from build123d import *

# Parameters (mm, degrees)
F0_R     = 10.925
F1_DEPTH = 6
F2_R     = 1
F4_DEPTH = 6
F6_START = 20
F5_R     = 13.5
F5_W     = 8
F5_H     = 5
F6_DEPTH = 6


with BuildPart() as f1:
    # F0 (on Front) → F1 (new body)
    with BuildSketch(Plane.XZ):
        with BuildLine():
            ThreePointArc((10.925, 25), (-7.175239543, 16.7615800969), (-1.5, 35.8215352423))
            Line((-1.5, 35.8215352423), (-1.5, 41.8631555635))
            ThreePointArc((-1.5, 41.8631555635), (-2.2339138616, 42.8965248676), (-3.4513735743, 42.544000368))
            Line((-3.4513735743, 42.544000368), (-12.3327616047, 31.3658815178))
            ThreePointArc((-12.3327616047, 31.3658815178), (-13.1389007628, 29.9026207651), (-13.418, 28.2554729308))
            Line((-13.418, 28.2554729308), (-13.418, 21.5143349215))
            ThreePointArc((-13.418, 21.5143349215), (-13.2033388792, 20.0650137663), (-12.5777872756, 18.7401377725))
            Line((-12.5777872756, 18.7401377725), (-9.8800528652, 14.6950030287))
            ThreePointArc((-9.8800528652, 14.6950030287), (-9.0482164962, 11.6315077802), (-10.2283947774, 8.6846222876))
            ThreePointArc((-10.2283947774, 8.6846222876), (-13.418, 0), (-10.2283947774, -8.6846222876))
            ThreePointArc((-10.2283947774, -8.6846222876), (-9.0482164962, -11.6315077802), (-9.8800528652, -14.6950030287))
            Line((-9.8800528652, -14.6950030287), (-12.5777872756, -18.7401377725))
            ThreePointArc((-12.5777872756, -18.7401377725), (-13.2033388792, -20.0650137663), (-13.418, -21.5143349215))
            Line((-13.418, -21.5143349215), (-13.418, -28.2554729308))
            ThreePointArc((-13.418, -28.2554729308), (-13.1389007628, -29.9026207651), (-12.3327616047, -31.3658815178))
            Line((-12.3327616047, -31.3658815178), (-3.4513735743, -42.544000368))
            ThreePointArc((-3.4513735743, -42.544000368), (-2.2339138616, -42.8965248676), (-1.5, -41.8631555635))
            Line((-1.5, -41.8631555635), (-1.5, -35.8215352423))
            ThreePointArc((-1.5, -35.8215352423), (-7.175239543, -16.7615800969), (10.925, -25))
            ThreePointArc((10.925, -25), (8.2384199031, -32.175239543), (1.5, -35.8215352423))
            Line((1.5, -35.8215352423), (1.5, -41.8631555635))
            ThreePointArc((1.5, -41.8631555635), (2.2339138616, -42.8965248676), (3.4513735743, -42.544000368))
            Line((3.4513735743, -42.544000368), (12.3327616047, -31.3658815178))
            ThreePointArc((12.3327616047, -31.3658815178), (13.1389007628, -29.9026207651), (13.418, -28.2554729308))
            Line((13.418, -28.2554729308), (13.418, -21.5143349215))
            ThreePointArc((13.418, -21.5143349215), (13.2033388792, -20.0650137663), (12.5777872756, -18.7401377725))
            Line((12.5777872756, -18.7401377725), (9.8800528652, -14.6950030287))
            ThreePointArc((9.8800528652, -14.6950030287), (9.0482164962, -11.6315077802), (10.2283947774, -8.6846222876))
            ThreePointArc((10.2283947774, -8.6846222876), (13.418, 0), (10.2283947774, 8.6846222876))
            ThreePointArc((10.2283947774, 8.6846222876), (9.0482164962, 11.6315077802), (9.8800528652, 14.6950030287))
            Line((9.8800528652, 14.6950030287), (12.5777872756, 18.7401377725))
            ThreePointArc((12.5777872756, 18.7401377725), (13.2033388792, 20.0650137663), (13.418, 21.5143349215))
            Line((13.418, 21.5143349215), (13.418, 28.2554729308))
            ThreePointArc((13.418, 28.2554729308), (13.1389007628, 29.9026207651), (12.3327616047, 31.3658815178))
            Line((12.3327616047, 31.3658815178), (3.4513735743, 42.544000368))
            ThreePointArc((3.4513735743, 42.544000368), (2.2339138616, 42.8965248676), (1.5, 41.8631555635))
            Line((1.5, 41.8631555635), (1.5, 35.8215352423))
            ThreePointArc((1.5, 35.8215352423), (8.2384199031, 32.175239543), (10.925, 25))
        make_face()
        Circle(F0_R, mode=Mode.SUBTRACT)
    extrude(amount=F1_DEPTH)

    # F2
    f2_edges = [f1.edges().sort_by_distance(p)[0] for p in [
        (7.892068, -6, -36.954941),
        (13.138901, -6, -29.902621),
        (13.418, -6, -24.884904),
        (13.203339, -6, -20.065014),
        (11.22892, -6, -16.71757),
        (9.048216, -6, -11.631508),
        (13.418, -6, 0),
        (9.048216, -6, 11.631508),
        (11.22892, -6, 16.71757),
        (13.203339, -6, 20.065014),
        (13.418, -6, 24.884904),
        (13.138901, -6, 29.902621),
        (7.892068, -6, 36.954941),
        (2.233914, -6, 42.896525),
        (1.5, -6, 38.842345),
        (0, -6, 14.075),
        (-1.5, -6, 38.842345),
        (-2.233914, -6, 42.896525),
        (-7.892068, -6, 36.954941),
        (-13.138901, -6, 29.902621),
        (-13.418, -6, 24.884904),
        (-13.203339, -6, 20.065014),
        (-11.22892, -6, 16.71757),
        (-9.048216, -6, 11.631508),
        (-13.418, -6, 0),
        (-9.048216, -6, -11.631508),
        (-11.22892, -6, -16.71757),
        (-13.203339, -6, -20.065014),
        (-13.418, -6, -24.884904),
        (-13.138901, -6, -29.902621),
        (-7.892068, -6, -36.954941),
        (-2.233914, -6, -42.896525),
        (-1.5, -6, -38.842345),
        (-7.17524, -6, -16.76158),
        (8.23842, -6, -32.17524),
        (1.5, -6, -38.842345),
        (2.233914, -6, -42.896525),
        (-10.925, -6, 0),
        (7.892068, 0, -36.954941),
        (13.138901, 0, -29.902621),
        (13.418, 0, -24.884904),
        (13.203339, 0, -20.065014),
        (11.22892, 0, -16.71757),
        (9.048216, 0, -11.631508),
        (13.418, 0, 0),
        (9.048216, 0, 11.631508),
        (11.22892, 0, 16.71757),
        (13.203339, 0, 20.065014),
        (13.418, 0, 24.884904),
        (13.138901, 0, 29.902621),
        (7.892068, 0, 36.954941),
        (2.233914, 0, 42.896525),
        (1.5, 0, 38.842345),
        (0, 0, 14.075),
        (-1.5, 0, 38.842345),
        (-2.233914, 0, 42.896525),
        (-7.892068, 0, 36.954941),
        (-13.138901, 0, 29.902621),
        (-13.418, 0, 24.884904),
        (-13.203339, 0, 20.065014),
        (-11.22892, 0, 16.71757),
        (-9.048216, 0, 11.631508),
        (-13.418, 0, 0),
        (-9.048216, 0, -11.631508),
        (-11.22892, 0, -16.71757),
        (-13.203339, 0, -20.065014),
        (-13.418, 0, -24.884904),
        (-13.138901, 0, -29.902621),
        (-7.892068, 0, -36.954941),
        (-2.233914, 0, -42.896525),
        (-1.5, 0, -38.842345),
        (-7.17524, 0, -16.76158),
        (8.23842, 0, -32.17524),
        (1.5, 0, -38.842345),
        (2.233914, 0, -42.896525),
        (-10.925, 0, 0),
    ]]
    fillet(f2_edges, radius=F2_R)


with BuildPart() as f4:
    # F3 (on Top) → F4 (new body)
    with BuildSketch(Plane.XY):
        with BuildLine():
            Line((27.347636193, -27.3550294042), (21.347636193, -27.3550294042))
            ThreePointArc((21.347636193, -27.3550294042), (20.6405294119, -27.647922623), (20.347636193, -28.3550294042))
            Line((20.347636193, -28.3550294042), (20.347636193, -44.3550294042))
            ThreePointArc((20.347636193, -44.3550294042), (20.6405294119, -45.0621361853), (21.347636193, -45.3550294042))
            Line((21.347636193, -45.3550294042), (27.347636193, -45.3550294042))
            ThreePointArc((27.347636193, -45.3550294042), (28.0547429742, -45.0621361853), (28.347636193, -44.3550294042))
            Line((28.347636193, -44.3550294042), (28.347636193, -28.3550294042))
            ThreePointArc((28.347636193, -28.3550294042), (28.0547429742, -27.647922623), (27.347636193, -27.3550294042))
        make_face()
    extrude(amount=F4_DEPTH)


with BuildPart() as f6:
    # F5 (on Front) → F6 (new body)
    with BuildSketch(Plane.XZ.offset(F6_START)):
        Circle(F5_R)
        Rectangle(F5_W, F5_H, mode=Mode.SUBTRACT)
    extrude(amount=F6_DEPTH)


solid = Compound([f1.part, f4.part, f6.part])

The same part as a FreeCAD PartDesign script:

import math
import FreeCAD as App
import Part
import Sketcher


def edges_at(feature, points):
    """Names of the edges that pass closest to the given points."""
    edges = feature.Shape.Edges
    near = lambda p: min(range(len(edges)), key=lambda i: edges[i].distToShape(Part.Vertex(*p))[0])
    return sorted({f"Edge{near(p) + 1}" for p in points})

doc = App.newDocument("Part")
body = doc.addObject("PartDesign::Body", "Body")

sketch1 = body.newObject("Sketcher::SketchObject", "Sketch")
sketch1.AttachmentSupport = (doc.getObject("XZ_Plane"), [""])
sketch1.MapMode = "FlatFace"
sketch1.addGeometry([
    Part.ArcOfCircle(Part.Circle(App.Vector(0, 25, 0), App.Vector(0, 0, 1), 10.925), math.radians(97.891626), math.radians(360)),
    Part.LineSegment(App.Vector(-1.5, 35.821535, 0), App.Vector(-1.5, 41.863156, 0)),
    Part.ArcOfCircle(Part.Circle(App.Vector(-2.594462, 41.863156, 0), App.Vector(0, 0, 1), 1.094462), math.radians(0), math.radians(141.531688)),
    Part.LineSegment(App.Vector(-3.451374, 42.544, 0), App.Vector(-12.332762, 31.365882, 0)),
    Part.ArcOfCircle(Part.Circle(App.Vector(-8.418, 28.255473, 0), App.Vector(0, 0, 1), 5), math.radians(141.531688), math.radians(180)),
    Part.LineSegment(App.Vector(-13.418, 28.255473, 0), App.Vector(-13.418, 21.514335, 0)),
    Part.ArcOfCircle(Part.Circle(App.Vector(-8.418, 21.514335, 0), App.Vector(0, 0, 1), 5), math.radians(180), math.radians(213.699656)),
    Part.LineSegment(App.Vector(-12.577787, 18.740138, 0), App.Vector(-9.880053, 14.695003, 0)),
    Part.ArcOfCircle(Part.Circle(App.Vector(-14.03984, 11.920806, 0), App.Vector(0, 0, 1), 5), math.radians(-40.333585), math.radians(33.699656)),
    Part.ArcOfCircle(Part.Circle(App.Vector(0, 0, 0), App.Vector(0, 0, 1), 13.418), math.radians(139.666415), math.radians(220.333585)),
    Part.ArcOfCircle(Part.Circle(App.Vector(-14.03984, -11.920806, 0), App.Vector(0, 0, 1), 5), math.radians(-33.699656), math.radians(40.333585)),
    Part.LineSegment(App.Vector(-9.880053, -14.695003, 0), App.Vector(-12.577787, -18.740138, 0)),
    Part.ArcOfCircle(Part.Circle(App.Vector(-8.418, -21.514335, 0), App.Vector(0, 0, 1), 5), math.radians(146.300344), math.radians(180)),
    Part.LineSegment(App.Vector(-13.418, -21.514335, 0), App.Vector(-13.418, -28.255473, 0)),
    Part.ArcOfCircle(Part.Circle(App.Vector(-8.418, -28.255473, 0), App.Vector(0, 0, 1), 5), math.radians(180), math.radians(218.468312)),
    Part.LineSegment(App.Vector(-12.332762, -31.365882, 0), App.Vector(-3.451374, -42.544, 0)),
    Part.ArcOfCircle(Part.Circle(App.Vector(-2.594462, -41.863156, 0), App.Vector(0, 0, 1), 1.094462), math.radians(-141.531688), math.radians(0)),
    Part.LineSegment(App.Vector(-1.5, -41.863156, 0), App.Vector(-1.5, -35.821535, 0)),
    Part.ArcOfCircle(Part.Circle(App.Vector(0, -25, 0), App.Vector(0, 0, 1), 10.925), math.radians(0), math.radians(262.108374)),
    Part.ArcOfCircle(Part.Circle(App.Vector(0, -25, 0), App.Vector(0, 0, 1), 10.925), math.radians(-82.108374), math.radians(0)),
    Part.LineSegment(App.Vector(1.5, -35.821535, 0), App.Vector(1.5, -41.863156, 0)),
    Part.ArcOfCircle(Part.Circle(App.Vector(2.594462, -41.863156, 0), App.Vector(0, 0, 1), 1.094462), math.radians(180), math.radians(321.531688)),
    Part.LineSegment(App.Vector(3.451374, -42.544, 0), App.Vector(12.332762, -31.365882, 0)),
    Part.ArcOfCircle(Part.Circle(App.Vector(8.418, -28.255473, 0), App.Vector(0, 0, 1), 5), math.radians(-38.468312), math.radians(0)),
    Part.LineSegment(App.Vector(13.418, -28.255473, 0), App.Vector(13.418, -21.514335, 0)),
    Part.ArcOfCircle(Part.Circle(App.Vector(8.418, -21.514335, 0), App.Vector(0, 0, 1), 5), math.radians(0), math.radians(33.699656)),
    Part.LineSegment(App.Vector(12.577787, -18.740138, 0), App.Vector(9.880053, -14.695003, 0)),
    Part.ArcOfCircle(Part.Circle(App.Vector(14.03984, -11.920806, 0), App.Vector(0, 0, 1), 5), math.radians(139.666415), math.radians(213.699656)),
    Part.ArcOfCircle(Part.Circle(App.Vector(0, 0, 0), App.Vector(0, 0, 1), 13.418), math.radians(-40.333585), math.radians(40.333585)),
    Part.ArcOfCircle(Part.Circle(App.Vector(14.03984, 11.920806, 0), App.Vector(0, 0, 1), 5), math.radians(146.300344), math.radians(220.333585)),
    Part.LineSegment(App.Vector(9.880053, 14.695003, 0), App.Vector(12.577787, 18.740138, 0)),
    Part.ArcOfCircle(Part.Circle(App.Vector(8.418, 21.514335, 0), App.Vector(0, 0, 1), 5), math.radians(-33.699656), math.radians(0)),
    Part.LineSegment(App.Vector(13.418, 21.514335, 0), App.Vector(13.418, 28.255473, 0)),
    Part.ArcOfCircle(Part.Circle(App.Vector(8.418, 28.255473, 0), App.Vector(0, 0, 1), 5), math.radians(0), math.radians(38.468312)),
    Part.LineSegment(App.Vector(12.332762, 31.365882, 0), App.Vector(3.451374, 42.544, 0)),
    Part.ArcOfCircle(Part.Circle(App.Vector(2.594462, 41.863156, 0), App.Vector(0, 0, 1), 1.094462), math.radians(38.468312), math.radians(180)),
    Part.LineSegment(App.Vector(1.5, 41.863156, 0), App.Vector(1.5, 35.821535, 0)),
    Part.ArcOfCircle(Part.Circle(App.Vector(0, 25, 0), App.Vector(0, 0, 1), 10.925), math.radians(0), math.radians(82.108374)),
    Part.Circle(App.Vector(0, 0, 0), App.Vector(0, 0, 1), 10.925),
], False)
sketch1.addConstraint([
    Sketcher.Constraint("Coincident", 0, 1, 1, 1),
    Sketcher.Constraint("Tangent", 1, 2, 2, 1),
    Sketcher.Constraint("Tangent", 2, 2, 3, 1),
    Sketcher.Constraint("Tangent", 3, 2, 4, 1),
    Sketcher.Constraint("Tangent", 4, 2, 5, 1),
    Sketcher.Constraint("Tangent", 5, 2, 6, 1),
    Sketcher.Constraint("Tangent", 6, 2, 7, 1),
    Sketcher.Constraint("Tangent", 7, 2, 8, 2),
    Sketcher.Constraint("Tangent", 8, 1, 9, 1),
    Sketcher.Constraint("Tangent", 9, 2, 10, 2),
    Sketcher.Constraint("Tangent", 10, 1, 11, 1),
    Sketcher.Constraint("Tangent", 11, 2, 12, 1),
    Sketcher.Constraint("Tangent", 12, 2, 13, 1),
    Sketcher.Constraint("Tangent", 13, 2, 14, 1),
    Sketcher.Constraint("Tangent", 14, 2, 15, 1),
    Sketcher.Constraint("Tangent", 15, 2, 16, 1),
    Sketcher.Constraint("Tangent", 16, 2, 17, 1),
    Sketcher.Constraint("Coincident", 17, 2, 18, 2),
    Sketcher.Constraint("Tangent", 18, 1, 19, 2),
    Sketcher.Constraint("Coincident", 19, 1, 20, 1),
    Sketcher.Constraint("Tangent", 20, 2, 21, 1),
    Sketcher.Constraint("Tangent", 21, 2, 22, 1),
    Sketcher.Constraint("Tangent", 22, 2, 23, 1),
    Sketcher.Constraint("Tangent", 23, 2, 24, 1),
    Sketcher.Constraint("Tangent", 24, 2, 25, 1),
    Sketcher.Constraint("Tangent", 25, 2, 26, 1),
    Sketcher.Constraint("Tangent", 26, 2, 27, 2),
    Sketcher.Constraint("Tangent", 27, 1, 28, 1),
    Sketcher.Constraint("Tangent", 28, 2, 29, 2),
    Sketcher.Constraint("Tangent", 29, 1, 30, 1),
    Sketcher.Constraint("Tangent", 30, 2, 31, 1),
    Sketcher.Constraint("Tangent", 31, 2, 32, 1),
    Sketcher.Constraint("Tangent", 32, 2, 33, 1),
    Sketcher.Constraint("Tangent", 33, 2, 34, 1),
    Sketcher.Constraint("Tangent", 34, 2, 35, 1),
    Sketcher.Constraint("Tangent", 35, 2, 36, 1),
    Sketcher.Constraint("Coincident", 36, 2, 37, 2),
    Sketcher.Constraint("Tangent", 37, 1, 0, 2),
    Sketcher.Constraint("Vertical", 1),
    Sketcher.Constraint("Vertical", 5),
    Sketcher.Constraint("Vertical", 13),
    Sketcher.Constraint("Vertical", 17),
    Sketcher.Constraint("Vertical", 20),
    Sketcher.Constraint("Vertical", 24),
    Sketcher.Constraint("Vertical", 32),
    Sketcher.Constraint("Vertical", 36),
    Sketcher.Constraint("Coincident", 9, 3, -1, 1),
    Sketcher.Constraint("Coincident", 28, 3, -1, 1),
    Sketcher.Constraint("Coincident", 38, 3, -1, 1),
    Sketcher.Constraint("Equal", 4, 6),
    Sketcher.Constraint("Equal", 6, 8),
    Sketcher.Constraint("Equal", 8, 10),
    Sketcher.Constraint("Equal", 10, 12),
    Sketcher.Constraint("Equal", 12, 14),
    Sketcher.Constraint("Equal", 2, 16),
    Sketcher.Constraint("Equal", 0, 18),
    Sketcher.Constraint("Equal", 18, 19),
    Sketcher.Constraint("Equal", 16, 21),
    Sketcher.Constraint("Equal", 14, 23),
    Sketcher.Constraint("Equal", 23, 25),
    Sketcher.Constraint("Equal", 25, 27),
    Sketcher.Constraint("Equal", 9, 28),
    Sketcher.Constraint("Equal", 27, 29),
    Sketcher.Constraint("Equal", 29, 31),
    Sketcher.Constraint("Equal", 31, 33),
    Sketcher.Constraint("Equal", 21, 35),
    Sketcher.Constraint("Equal", 19, 37),
    Sketcher.Constraint("Equal", 37, 38),
    Sketcher.Constraint("Symmetric", 0, 3, 18, 3, -1, 1),
    Sketcher.Constraint("Symmetric", 2, 3, 21, 3, -1, 1),
    Sketcher.Constraint("Symmetric", 4, 3, 23, 3, -1, 1),
    Sketcher.Constraint("Symmetric", 12, 3, 31, 3, -1, 1),
    Sketcher.Constraint("Symmetric", 16, 3, 35, 3, -1, 1),
    Sketcher.Constraint("Symmetric", 6, 2, 25, 2, -1, 1),
    Sketcher.Constraint("Symmetric", 16, 3, 21, 3, -2),
    Sketcher.Constraint("Symmetric", 14, 3, 23, 3, -2),
    Sketcher.Constraint("Symmetric", 11, 2, 25, 2, -2),
    Sketcher.Constraint("Symmetric", 18, 1, 37, 1, -1),
    Sketcher.Constraint("Parallel", 11, 30),
    Sketcher.Constraint("Parallel", 15, 34),
    Sketcher.Constraint("Horizontal", 19, 3, 18, 1),
    Sketcher.Constraint("Radius", 4, 5.0),
    Sketcher.Constraint("Diameter", 38, 21.85),
    Sketcher.Constraint("DistanceY", -1, 1, 0, 3, 25.0),
    Sketcher.Constraint("Radius", 9, 13.418),
    Sketcher.Constraint("DistanceX", 0, 1, -1, 1, 1.5),
    Sketcher.Constraint("DistanceX", 4, 3, -1, 1, 8.418),
    Sketcher.Constraint("DistanceY", -1, 1, 2, 2, 42.544),
    Sketcher.Constraint("Radius", 2, 1.094462),
    Sketcher.Constraint("DistanceY", 1, 1, 1, 2, 6.04162),
    Sketcher.Constraint("DistanceY", 5, 2, 5, 1, 6.741138),
    Sketcher.Constraint("Distance", 7, 4.862189),
])
pad1 = body.newObject("PartDesign::Pad", "Pad")
pad1.Profile = sketch1
pad1.Length = 6
doc.recompute()

fillet = body.newObject("PartDesign::Fillet", "Fillet")
fillet.Base = (pad1, edges_at(pad1, [
    (7.892, -6, -36.955),
    (13.139, -6, -29.903),
    (13.418, -6, -24.885),
    (13.203, -6, -20.065),
    (11.229, -6, -16.718),
    (9.048, -6, -11.632),
    (13.418, -6, 0),
    (9.048, -6, 11.632),
    (11.229, -6, 16.718),
    (13.203, -6, 20.065),
    (13.418, -6, 24.885),
    (13.139, -6, 29.903),
    (7.892, -6, 36.955),
    (2.234, -6, 42.897),
    (1.5, -6, 38.842),
    (-7.175, -6, 16.762),
    (-1.5, -6, 38.842),
    (-2.234, -6, 42.897),
    (-7.892, -6, 36.955),
    (-13.139, -6, 29.903),
    (-13.418, -6, 24.885),
    (-13.203, -6, 20.065),
    (-11.229, -6, 16.718),
    (-9.048, -6, 11.632),
    (-13.418, -6, 0),
    (-9.048, -6, -11.632),
    (-11.229, -6, -16.718),
    (-13.203, -6, -20.065),
    (-13.418, -6, -24.885),
    (-13.139, -6, -29.903),
    (-7.892, -6, -36.955),
    (-2.234, -6, -42.897),
    (-1.5, -6, -38.842),
    (-7.175, -6, -16.762),
    (8.238, -6, -32.175),
    (1.5, -6, -38.842),
    (2.234, -6, -42.897),
    (-10.925, -6, 0),
    (7.892, 0, -36.955),
    (13.139, 0, -29.903),
    (13.418, 0, -24.885),
    (13.203, 0, -20.065),
    (11.229, 0, -16.718),
    (9.048, 0, -11.632),
    (13.418, 0, 0),
    (9.048, 0, 11.632),
    (11.229, 0, 16.718),
    (13.203, 0, 20.065),
    (13.418, 0, 24.885),
    (13.139, 0, 29.903),
    (7.892, 0, 36.955),
    (2.234, 0, 42.897),
    (1.5, 0, 38.842),
    (-7.175, 0, 16.762),
    (-1.5, 0, 38.842),
    (-2.234, 0, 42.897),
    (-7.892, 0, 36.955),
    (-13.139, 0, 29.903),
    (-13.418, 0, 24.885),
    (-13.203, 0, 20.065),
    (-11.229, 0, 16.718),
    (-9.048, 0, 11.632),
    (-13.418, 0, 0),
    (-9.048, 0, -11.632),
    (-11.229, 0, -16.718),
    (-13.203, 0, -20.065),
    (-13.418, 0, -24.885),
    (-13.139, 0, -29.903),
    (-7.892, 0, -36.955),
    (-2.234, 0, -42.897),
    (-1.5, 0, -38.842),
    (-7.175, 0, -16.762),
    (8.238, 0, -32.175),
    (1.5, 0, -38.842),
    (2.234, 0, -42.897),
    (-10.925, 0, 0),
]))
fillet.Radius = 1
body2 = doc.addObject("PartDesign::Body", "Body001")

sketch2 = body2.newObject("Sketcher::SketchObject", "Sketch001")
sketch2.AttachmentSupport = (doc.getObject("XY_Plane001"), [""])
sketch2.MapMode = "FlatFace"
sketch2.addGeometry([
    Part.LineSegment(App.Vector(27.347636, -27.355029, 0), App.Vector(21.347636, -27.355029, 0)),
    Part.ArcOfCircle(Part.Circle(App.Vector(21.347636, -28.355029, 0), App.Vector(0, 0, 1), 1), math.radians(90), math.radians(180)),
    Part.LineSegment(App.Vector(20.347636, -28.355029, 0), App.Vector(20.347636, -44.355029, 0)),
    Part.ArcOfCircle(Part.Circle(App.Vector(21.347636, -44.355029, 0), App.Vector(0, 0, 1), 1), math.radians(180), math.radians(270)),
    Part.LineSegment(App.Vector(21.347636, -45.355029, 0), App.Vector(27.347636, -45.355029, 0)),
    Part.ArcOfCircle(Part.Circle(App.Vector(27.347636, -44.355029, 0), App.Vector(0, 0, 1), 1), math.radians(-90), math.radians(0)),
    Part.LineSegment(App.Vector(28.347636, -44.355029, 0), App.Vector(28.347636, -28.355029, 0)),
    Part.ArcOfCircle(Part.Circle(App.Vector(27.347636, -28.355029, 0), App.Vector(0, 0, 1), 1), math.radians(0), math.radians(90)),
], False)
sketch2.addConstraint([
    Sketcher.Constraint("Tangent", 0, 2, 1, 1),
    Sketcher.Constraint("Tangent", 1, 2, 2, 1),
    Sketcher.Constraint("Tangent", 2, 2, 3, 1),
    Sketcher.Constraint("Tangent", 3, 2, 4, 1),
    Sketcher.Constraint("Tangent", 4, 2, 5, 1),
    Sketcher.Constraint("Tangent", 5, 2, 6, 1),
    Sketcher.Constraint("Tangent", 6, 2, 7, 1),
    Sketcher.Constraint("Tangent", 7, 2, 0, 1),
    Sketcher.Constraint("Horizontal", 0),
    Sketcher.Constraint("Vertical", 2),
    Sketcher.Constraint("Horizontal", 4),
    Sketcher.Constraint("Vertical", 6),
    Sketcher.Constraint("Equal", 1, 3),
    Sketcher.Constraint("Equal", 3, 5),
    Sketcher.Constraint("Equal", 5, 7),
    Sketcher.Constraint("Radius", 1, 1.0),
    Sketcher.Constraint("DistanceX", 0, 2, 0, 1, 6.0),
    Sketcher.Constraint("DistanceY", 2, 2, 2, 1, 16.0),
    Sketcher.Constraint("DistanceY", 1, 3, -1, 1, 28.355029),
    Sketcher.Constraint("DistanceX", -1, 1, 1, 3, 21.347636),
])
pad2 = body2.newObject("PartDesign::Pad", "Pad001")
pad2.Profile = sketch2
pad2.Length = 6
body3 = doc.addObject("PartDesign::Body", "Body002")

sketch3 = body3.newObject("Sketcher::SketchObject", "Sketch002")
sketch3.AttachmentSupport = (doc.getObject("XZ_Plane002"), [""])
sketch3.MapMode = "FlatFace"
sketch3.AttachmentOffset = App.Placement(App.Vector(0, 0, 20), App.Rotation())
sketch3.addGeometry([
    Part.Circle(App.Vector(0, 0, 0), App.Vector(0, 0, 1), 13.5),
    Part.LineSegment(App.Vector(4, -2.5, 0), App.Vector(-4, -2.5, 0)),
    Part.LineSegment(App.Vector(-4, -2.5, 0), App.Vector(-4, 2.5, 0)),
    Part.LineSegment(App.Vector(-4, 2.5, 0), App.Vector(4, 2.5, 0)),
    Part.LineSegment(App.Vector(4, 2.5, 0), App.Vector(4, -2.5, 0)),
], False)
sketch3.addConstraint([
    Sketcher.Constraint("Coincident", 1, 2, 2, 1),
    Sketcher.Constraint("Coincident", 2, 2, 3, 1),
    Sketcher.Constraint("Coincident", 3, 2, 4, 1),
    Sketcher.Constraint("Coincident", 4, 2, 1, 1),
    Sketcher.Constraint("Horizontal", 1),
    Sketcher.Constraint("Vertical", 2),
    Sketcher.Constraint("Horizontal", 3),
    Sketcher.Constraint("Vertical", 4),
    Sketcher.Constraint("Coincident", 0, 3, -1, 1),
    Sketcher.Constraint("Symmetric", 1, 2, 3, 2, -1, 1),
    Sketcher.Constraint("Diameter", 0, 27.0),
    Sketcher.Constraint("DistanceX", 1, 2, 1, 1, 8.0),
    Sketcher.Constraint("DistanceY", 2, 1, 2, 2, 5.0),
])
pad3 = body3.newObject("PartDesign::Pad", "Pad002")
pad3.Profile = sketch3
pad3.Length = 6

doc.recompute()
